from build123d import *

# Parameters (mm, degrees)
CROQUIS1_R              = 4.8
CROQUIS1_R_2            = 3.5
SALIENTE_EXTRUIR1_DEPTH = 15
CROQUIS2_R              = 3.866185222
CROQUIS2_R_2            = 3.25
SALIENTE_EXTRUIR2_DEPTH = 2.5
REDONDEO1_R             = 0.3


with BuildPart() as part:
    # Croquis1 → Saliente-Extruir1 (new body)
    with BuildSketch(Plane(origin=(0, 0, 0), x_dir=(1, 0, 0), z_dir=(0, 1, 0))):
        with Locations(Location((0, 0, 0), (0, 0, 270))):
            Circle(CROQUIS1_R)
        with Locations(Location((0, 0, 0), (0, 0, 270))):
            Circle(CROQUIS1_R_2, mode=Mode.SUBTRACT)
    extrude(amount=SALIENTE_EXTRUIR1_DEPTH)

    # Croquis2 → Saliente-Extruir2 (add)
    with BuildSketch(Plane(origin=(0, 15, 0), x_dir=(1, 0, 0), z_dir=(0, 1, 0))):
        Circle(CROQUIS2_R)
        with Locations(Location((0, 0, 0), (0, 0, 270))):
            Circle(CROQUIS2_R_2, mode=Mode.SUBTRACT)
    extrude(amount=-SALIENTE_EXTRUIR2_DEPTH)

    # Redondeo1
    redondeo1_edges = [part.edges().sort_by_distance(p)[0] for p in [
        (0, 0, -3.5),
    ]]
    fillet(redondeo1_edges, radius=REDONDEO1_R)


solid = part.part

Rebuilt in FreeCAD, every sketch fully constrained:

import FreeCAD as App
import Part
import Sketcher

V = App.Vector


def edges_at(feature, points):
    """Names of the edges that pass closest to the given points."""
    edges = feature.Shape.Edges
    near = lambda p: min(range(len(edges)), key=lambda i: edges[i].distToShape(Part.Vertex(*p))[0])
    return sorted({f"Edge{near(p) + 1}" for p in points})

doc = App.newDocument("Part")
params = doc.addObject("Spreadsheet::Sheet", "Params")
for row, (alias, value) in enumerate([
    ("sketch1_diameter", "7 mm"),
    ("sketch1_diameter2", "9.6 mm"),
    ("pad1_length", "15 mm"),
    ("sketch2_diameter", "6.5 mm"),
    ("pad2_length", "2.5 mm"),
    ("fillet_radius", "0.3 mm"),
], start=1):
    params.set(f"A{row}", alias)
    params.set(f"B{row}", "=" + value)
    params.setAlias(f"B{row}", alias)

body = doc.addObject("PartDesign::Body", "Body")

# Sketch on XZ plane
sketch1 = doc.addObject("Sketcher::SketchObject", "Sketch")
body.addObject(sketch1)
sketch1.AttachmentSupport = (doc.XZ_Plane, [""])
sketch1.MapMode = "FlatFace"
sketch1.addGeometry([
    Part.Circle(V(0, 0, 0), V(0, 0, 1), 4.8),
    Part.Circle(V(0, 0, 0), V(0, 0, 1), 3.5),
], False)
sketch1.addConstraint([
    Sketcher.Constraint("Coincident", 0, 3, -1, 1),
    Sketcher.Constraint("Coincident", 1, 3, -1, 1),
    Sketcher.Constraint("Diameter", 1, 7.0),
    Sketcher.Constraint("Diameter", 0, 9.6),
])
sketch1.setExpression("Constraints[2]", "Params.sketch1_diameter")
sketch1.setExpression("Constraints[3]", "Params.sketch1_diameter2")
pad1 = doc.addObject("PartDesign::Pad", "Pad")
body.addObject(pad1)
pad1.Profile = sketch1
pad1.setExpression("Length", "Params.pad1_length")
pad1.Reversed = True

# Sketch on XZ plane
sketch2 = doc.addObject("Sketcher::SketchObject", "Sketch001")
body.addObject(sketch2)
sketch2.AttachmentSupport = (doc.XZ_Plane, [""])
sketch2.MapMode = "FlatFace"
sketch2.AttachmentOffset = App.Placement(V(0, 0, -15), App.Rotation())
sketch2.addGeometry([
    Part.Circle(V(0, 0, 0), V(0, 0, 1), 3.866185),
    Part.Circle(V(0, 0, 0), V(0, 0, 1), 3.25),
], False)
sketch2.addConstraint([
    Sketcher.Constraint("Coincident", 0, 3, -1, 1),
    Sketcher.Constraint("Coincident", 1, 3, -1, 1),
    Sketcher.Constraint("Diameter", 1, 6.5),
    Sketcher.Constraint("Diameter", 0, 7.73237),
])
sketch2.setExpression("Constraints[2]", "Params.sketch2_diameter")
pad2 = doc.addObject("PartDesign::Pad", "Pad001")
body.addObject(pad2)
pad2.Profile = sketch2
pad2.setExpression("Length", "Params.pad2_length")
doc.recompute()

fillet = doc.addObject("PartDesign::Fillet", "Fillet")
body.addObject(fillet)
fillet.Base = (pad2, edges_at(pad2, [(0, 0, -3.5)]))
fillet.setExpression("Radius", "Params.fillet_radius")

doc.recompute()
